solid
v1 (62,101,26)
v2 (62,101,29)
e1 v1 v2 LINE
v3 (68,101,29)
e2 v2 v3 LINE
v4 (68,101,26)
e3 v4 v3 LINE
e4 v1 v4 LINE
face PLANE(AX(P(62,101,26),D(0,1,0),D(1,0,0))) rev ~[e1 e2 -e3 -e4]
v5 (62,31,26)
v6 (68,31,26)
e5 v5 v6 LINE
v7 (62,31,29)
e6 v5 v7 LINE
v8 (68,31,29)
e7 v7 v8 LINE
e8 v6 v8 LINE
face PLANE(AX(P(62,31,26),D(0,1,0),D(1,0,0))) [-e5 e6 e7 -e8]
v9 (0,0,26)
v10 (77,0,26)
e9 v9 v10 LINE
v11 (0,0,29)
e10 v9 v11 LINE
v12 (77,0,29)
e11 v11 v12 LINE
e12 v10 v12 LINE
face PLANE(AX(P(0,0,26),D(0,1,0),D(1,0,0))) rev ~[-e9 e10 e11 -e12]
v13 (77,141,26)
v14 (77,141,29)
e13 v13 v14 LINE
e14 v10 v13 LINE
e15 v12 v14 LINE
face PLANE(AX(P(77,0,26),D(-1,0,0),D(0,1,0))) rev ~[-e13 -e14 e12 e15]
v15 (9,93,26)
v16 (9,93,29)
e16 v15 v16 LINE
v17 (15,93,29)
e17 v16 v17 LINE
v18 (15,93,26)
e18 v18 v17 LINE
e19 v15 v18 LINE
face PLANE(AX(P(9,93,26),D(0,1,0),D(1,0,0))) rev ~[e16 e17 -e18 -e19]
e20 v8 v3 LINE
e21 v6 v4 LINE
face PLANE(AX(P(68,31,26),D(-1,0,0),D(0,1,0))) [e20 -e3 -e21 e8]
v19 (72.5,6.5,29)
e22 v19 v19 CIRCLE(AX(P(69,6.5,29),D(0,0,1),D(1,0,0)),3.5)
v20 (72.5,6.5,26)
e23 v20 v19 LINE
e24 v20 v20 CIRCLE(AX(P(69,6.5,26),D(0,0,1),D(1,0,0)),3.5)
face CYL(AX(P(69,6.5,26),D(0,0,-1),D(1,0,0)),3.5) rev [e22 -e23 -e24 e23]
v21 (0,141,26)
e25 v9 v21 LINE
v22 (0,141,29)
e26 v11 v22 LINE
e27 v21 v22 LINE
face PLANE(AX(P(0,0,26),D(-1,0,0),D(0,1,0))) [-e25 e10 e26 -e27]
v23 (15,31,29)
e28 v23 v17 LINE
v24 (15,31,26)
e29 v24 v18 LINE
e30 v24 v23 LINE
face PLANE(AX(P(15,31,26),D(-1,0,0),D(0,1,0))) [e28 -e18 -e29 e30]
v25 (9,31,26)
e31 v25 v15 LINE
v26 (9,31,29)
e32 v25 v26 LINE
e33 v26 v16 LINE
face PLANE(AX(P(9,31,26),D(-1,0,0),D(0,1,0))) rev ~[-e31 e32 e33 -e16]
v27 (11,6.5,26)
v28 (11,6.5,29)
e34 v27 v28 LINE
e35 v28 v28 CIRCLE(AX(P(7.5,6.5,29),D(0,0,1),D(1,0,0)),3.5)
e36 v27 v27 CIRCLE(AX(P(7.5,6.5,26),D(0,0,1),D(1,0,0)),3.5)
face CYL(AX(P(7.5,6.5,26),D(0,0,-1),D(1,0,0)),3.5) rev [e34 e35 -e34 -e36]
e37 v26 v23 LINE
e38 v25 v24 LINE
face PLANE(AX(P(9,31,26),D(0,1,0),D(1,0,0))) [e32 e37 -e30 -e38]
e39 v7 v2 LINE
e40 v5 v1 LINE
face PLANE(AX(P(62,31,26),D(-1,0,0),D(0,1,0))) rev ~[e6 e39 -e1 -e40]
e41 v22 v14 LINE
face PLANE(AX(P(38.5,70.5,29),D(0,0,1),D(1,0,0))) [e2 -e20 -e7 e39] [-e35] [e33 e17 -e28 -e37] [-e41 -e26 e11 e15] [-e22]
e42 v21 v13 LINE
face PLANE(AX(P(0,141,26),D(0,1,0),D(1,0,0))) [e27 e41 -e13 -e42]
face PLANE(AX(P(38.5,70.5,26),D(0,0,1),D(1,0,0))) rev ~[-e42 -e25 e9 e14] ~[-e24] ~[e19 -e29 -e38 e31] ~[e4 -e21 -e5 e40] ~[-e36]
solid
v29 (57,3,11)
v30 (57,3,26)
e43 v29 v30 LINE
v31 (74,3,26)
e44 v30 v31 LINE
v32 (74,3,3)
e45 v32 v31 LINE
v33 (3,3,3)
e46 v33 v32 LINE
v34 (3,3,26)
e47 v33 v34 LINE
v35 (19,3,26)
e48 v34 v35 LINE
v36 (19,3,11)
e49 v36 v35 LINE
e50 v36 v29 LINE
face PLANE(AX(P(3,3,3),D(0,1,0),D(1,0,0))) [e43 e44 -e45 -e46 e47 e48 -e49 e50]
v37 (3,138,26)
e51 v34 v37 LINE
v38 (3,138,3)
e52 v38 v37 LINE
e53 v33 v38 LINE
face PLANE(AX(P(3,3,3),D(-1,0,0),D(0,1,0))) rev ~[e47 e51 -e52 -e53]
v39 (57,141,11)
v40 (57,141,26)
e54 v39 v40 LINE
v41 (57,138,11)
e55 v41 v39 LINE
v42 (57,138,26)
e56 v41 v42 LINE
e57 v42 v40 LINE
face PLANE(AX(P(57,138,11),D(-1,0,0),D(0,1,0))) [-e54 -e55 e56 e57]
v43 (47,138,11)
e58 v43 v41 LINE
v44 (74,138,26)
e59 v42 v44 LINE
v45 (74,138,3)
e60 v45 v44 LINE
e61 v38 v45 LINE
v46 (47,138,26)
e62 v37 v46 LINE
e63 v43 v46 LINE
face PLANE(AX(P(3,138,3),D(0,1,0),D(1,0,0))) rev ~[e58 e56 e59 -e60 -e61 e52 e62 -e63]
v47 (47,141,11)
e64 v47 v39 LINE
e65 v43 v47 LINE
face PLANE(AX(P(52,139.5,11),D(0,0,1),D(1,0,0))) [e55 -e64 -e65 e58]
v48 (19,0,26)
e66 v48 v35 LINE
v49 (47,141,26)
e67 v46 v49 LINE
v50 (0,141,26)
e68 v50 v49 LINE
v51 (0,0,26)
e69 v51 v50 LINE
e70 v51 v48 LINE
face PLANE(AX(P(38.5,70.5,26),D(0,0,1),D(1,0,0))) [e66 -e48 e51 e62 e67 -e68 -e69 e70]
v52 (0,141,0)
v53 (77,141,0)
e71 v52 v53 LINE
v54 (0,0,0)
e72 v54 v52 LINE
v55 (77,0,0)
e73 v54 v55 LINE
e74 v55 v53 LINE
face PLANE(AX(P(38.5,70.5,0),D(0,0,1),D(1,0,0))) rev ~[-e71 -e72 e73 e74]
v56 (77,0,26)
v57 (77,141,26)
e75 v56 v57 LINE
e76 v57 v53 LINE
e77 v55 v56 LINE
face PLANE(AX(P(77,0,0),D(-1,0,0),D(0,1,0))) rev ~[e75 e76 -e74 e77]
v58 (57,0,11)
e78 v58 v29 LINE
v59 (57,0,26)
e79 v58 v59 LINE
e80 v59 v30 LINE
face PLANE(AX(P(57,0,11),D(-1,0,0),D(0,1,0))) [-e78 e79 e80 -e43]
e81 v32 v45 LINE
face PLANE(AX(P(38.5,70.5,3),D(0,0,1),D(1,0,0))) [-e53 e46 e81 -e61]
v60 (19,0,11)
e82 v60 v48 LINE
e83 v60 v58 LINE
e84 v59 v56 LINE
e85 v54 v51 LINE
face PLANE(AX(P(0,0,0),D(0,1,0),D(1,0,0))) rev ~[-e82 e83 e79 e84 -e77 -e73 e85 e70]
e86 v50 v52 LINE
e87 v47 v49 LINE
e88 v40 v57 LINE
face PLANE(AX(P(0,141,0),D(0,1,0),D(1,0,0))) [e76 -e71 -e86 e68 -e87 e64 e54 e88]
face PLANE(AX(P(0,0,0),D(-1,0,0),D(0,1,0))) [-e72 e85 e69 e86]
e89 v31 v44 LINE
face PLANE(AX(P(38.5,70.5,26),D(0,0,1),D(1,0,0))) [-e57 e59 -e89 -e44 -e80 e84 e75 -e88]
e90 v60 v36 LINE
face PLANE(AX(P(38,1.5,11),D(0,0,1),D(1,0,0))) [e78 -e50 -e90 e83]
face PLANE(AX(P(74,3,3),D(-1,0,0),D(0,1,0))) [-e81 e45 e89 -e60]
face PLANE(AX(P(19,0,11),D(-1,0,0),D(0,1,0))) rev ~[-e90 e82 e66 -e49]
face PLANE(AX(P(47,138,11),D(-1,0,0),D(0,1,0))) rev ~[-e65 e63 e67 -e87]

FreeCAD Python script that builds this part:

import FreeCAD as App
import Part
import Sketcher

V = App.Vector


def add_polygon(sketch, points):
    """Adds a closed chain of lines whose ends are joined by coincident constraints."""
    first, n = sketch.GeometryCount, len(points)
    for a, b in zip(points, points[1:] + points[:1]):
        sketch.addGeometry(Part.LineSegment(App.Vector(*a, 0), App.Vector(*b, 0)), False)
    for i in range(n):
        sketch.addConstraint(Sketcher.Constraint("Coincident", first + i, 2, first + (i + 1) % n, 1))

doc = App.newDocument("Part")
body = doc.addObject("PartDesign::Body", "Body")

# Sketch on XY plane
sketch1 = doc.addObject("Sketcher::SketchObject", "Sketch")
body.addObject(sketch1)
sketch1.AttachmentSupport = (doc.XY_Plane, [""])
sketch1.MapMode = "FlatFace"
sketch1.AttachmentOffset = App.Placement(V(0, 0, 11), App.Rotation())
add_polygon(sketch1, [(47, 141), (47, 138), (57, 138), (57, 141)])  # lines 0-3
sketch1.addConstraint([
    Sketcher.Constraint("Vertical", 0),
    Sketcher.Constraint("Horizontal", 1),
    Sketcher.Constraint("Vertical", 2),
    Sketcher.Constraint("Horizontal", 3),
    Sketcher.Constraint("DistanceX", 1, 1, 1, 2, 10.0),
    Sketcher.Constraint("DistanceY", 0, 2, 0, 1, 3.0),
    Sketcher.Constraint("DistanceX", -1, 1, 0, 2, 47.0),
    Sketcher.Constraint("DistanceY", -1, 1, 0, 2, 138.0),
])
pad1 = doc.addObject("PartDesign::Pad", "Pad")
body.addObject(pad1)
pad1.Profile = sketch1
pad1.Length = 15
body2 = doc.addObject("PartDesign::Body", "Body001")

# Sketch on XY plane
sketch2 = doc.addObject("Sketcher::SketchObject", "Sketch001")
body2.addObject(sketch2)
sketch2.AttachmentSupport = (doc.getObject("XY_Plane001"), [""])
sketch2.MapMode = "FlatFace"
sketch2.AttachmentOffset = App.Placement(V(0, 0, 11), App.Rotation())
add_polygon(sketch2, [(19, 3), (19, 0), (57, 0), (57, 3)])  # lines 0-3
sketch2.addConstraint([
    Sketcher.Constraint("Vertical", 0),
    Sketcher.Constraint("Horizontal", 1),
    Sketcher.Constraint("Vertical", 2),
    Sketcher.Constraint("Horizontal", 3),
    Sketcher.Constraint("PointOnObject", 0, 2, -1),
    Sketcher.Constraint("DistanceX", 1, 1, 1, 2, 38.0),
    Sketcher.Constraint("DistanceY", 0, 2, 0, 1, 3.0),
    Sketcher.Constraint("DistanceX", -1, 1, 0, 2, 19.0),
])
pad2 = doc.addObject("PartDesign::Pad", "Pad001")
body2.addObject(pad2)
pad2.Profile = sketch2
pad2.Length = 15
body3 = doc.addObject("PartDesign::Body", "Body002")

# Sketch on XY plane
sketch3 = doc.addObject("Sketcher::SketchObject", "Sketch002")
body3.addObject(sketch3)
sketch3.AttachmentSupport = (doc.getObject("XY_Plane002"), [""])
sketch3.MapMode = "FlatFace"
add_polygon(sketch3, [(0, 141), (0, 0), (77, 0), (77, 141)])  # lines 0-3
sketch3.addConstraint([
    Sketcher.Constraint("Vertical", 0),
    Sketcher.Constraint("Horizontal", 1),
    Sketcher.Constraint("Vertical", 2),
    Sketcher.Constraint("Horizontal", 3),
    Sketcher.Constraint("Coincident", 0, 2, -1, 1),
    Sketcher.Constraint("DistanceX", 1, 1, 1, 2, 77.0),
    Sketcher.Constraint("DistanceY", 0, 2, 0, 1, 141.0),
])
pad3 = doc.addObject("PartDesign::Pad", "Pad002")
body3.addObject(pad3)
pad3.Profile = sketch3
pad3.Length = 3
body4 = doc.addObject("PartDesign::Body", "Body003")

# Sketch on XY plane
sketch4 = doc.addObject("Sketcher::SketchObject", "Sketch003")
body4.addObject(sketch4)
sketch4.AttachmentSupport = (doc.getObject("XY_Plane003"), [""])
sketch4.MapMode = "FlatFace"
add_polygon(sketch4, [(3, 138), (3, 3), (74, 3), (74, 138)])  # lines 0-3
sketch4.addConstraint([
    Sketcher.Constraint("Vertical", 0),
    Sketcher.Constraint("Horizontal", 1),
    Sketcher.Constraint("Vertical", 2),
    Sketcher.Constraint("Horizontal", 3),
    Sketcher.Constraint("DistanceX", 1, 1, 1, 2, 71.0),
    Sketcher.Constraint("DistanceY", 0, 2, 0, 1, 135.0),
    Sketcher.Constraint("DistanceX", -1, 1, 0, 2, 3.0),
    Sketcher.Constraint("DistanceY", -1, 1, 0, 2, 3.0),
])
pad4 = doc.addObject("PartDesign::Pad", "Pad003")
body4.addObject(pad4)
pad4.Profile = sketch4
pad4.Length = 23
body5 = doc.addObject("PartDesign::Body", "Body004")

# Sketch on XY plane
sketch5 = doc.addObject("Sketcher::SketchObject", "Sketch004")
body5.addObject(sketch5)
sketch5.AttachmentSupport = (doc.getObject("XY_Plane004"), [""])
sketch5.MapMode = "FlatFace"
add_polygon(sketch5, [(0, 141), (0, 0), (77, 0), (77, 141)])  # lines 0-3
sketch5.addConstraint([
    Sketcher.Constraint("Vertical", 0),
    Sketcher.Constraint("Horizontal", 1),
    Sketcher.Constraint("Vertical", 2),
    Sketcher.Constraint("Horizontal", 3),
    Sketcher.Constraint("Coincident", 0, 2, -1, 1),
    Sketcher.Constraint("DistanceX", 1, 1, 1, 2, 77.0),
    Sketcher.Constraint("DistanceY", 0, 2, 0, 1, 141.0),
])
pad5 = doc.addObject("PartDesign::Pad", "Pad004")
body5.addObject(pad5)
pad5.Profile = sketch5
pad5.Length = 23
doc.recompute()

boolean = doc.addObject("PartDesign::Boolean", "Boolean")
body5.addObject(boolean)
boolean.Type = "Cut"
boolean.addObjects([body4])
body6 = doc.addObject("PartDesign::Body", "Body005")
doc.recompute()

body5.Placement = App.Placement(V(0, 0, 3), App.Rotation(V(0, 0, 1), 0))
boolean2 = doc.addObject("PartDesign::Boolean", "Boolean001")
body6.addObject(boolean2)
boolean2.Type = "Fuse"
boolean2.addObjects([body5])
doc.recompute()

boolean3 = doc.addObject("PartDesign::Boolean", "Boolean002")
body6.addObject(boolean3)
boolean3.Type = "Fuse"
boolean3.addObjects([body3])
doc.recompute()

boolean4 = doc.addObject("PartDesign::Boolean", "Boolean003")
body6.addObject(boolean4)
boolean4.Type = "Cut"
boolean4.addObjects([body2])
doc.recompute()

boolean5 = doc.addObject("PartDesign::Boolean", "Boolean004")
body6.addObject(boolean5)
boolean5.Type = "Cut"
boolean5.addObjects([body])
body7 = doc.addObject("PartDesign::Body", "Body006")

# Sketch on XY plane
sketch6 = doc.addObject("Sketcher::SketchObject", "Sketch005")
body7.addObject(sketch6)
sketch6.AttachmentSupport = (doc.getObject("XY_Plane006"), [""])
sketch6.MapMode = "FlatFace"
sketch6.AttachmentOffset = App.Placement(V(0, 0, 26), App.Rotation())
add_polygon(sketch6, [(62, 101), (62, 31), (68, 31), (68, 101)])  # lines 0-3
sketch6.addConstraint([
    Sketcher.Constraint("Vertical", 0),
    Sketcher.Constraint("Horizontal", 1),
    Sketcher.Constraint("Vertical", 2),
    Sketcher.Constraint("Horizontal", 3),
    Sketcher.Constraint("DistanceX", 1, 1, 1, 2, 6.0),
    Sketcher.Constraint("DistanceY", 0, 2, 0, 1, 70.0),
    Sketcher.Constraint("DistanceX", -1, 1, 0, 2, 62.0),
    Sketcher.Constraint("DistanceY", -1, 1, 0, 2, 31.0),
])
pad6 = doc.addObject("PartDesign::Pad", "Pad005")
body7.addObject(pad6)
pad6.Profile = sketch6
pad6.Length = 3
body8 = doc.addObject("PartDesign::Body", "Body007")
body8.AllowCompound = True

# Sketch on XY plane
sketch7 = doc.addObject("Sketcher::SketchObject", "Sketch006")
body8.addObject(sketch7)
sketch7.AttachmentSupport = (doc.getObject("XY_Plane007"), [""])
sketch7.MapMode = "FlatFace"
sketch7.AttachmentOffset = App.Placement(V(0, 0, 26), App.Rotation())
add_polygon(sketch7, [(9, 93), (9, 31), (15, 31), (15, 93)])  # lines 0-3
sketch7.addConstraint([
    Sketcher.Constraint("Vertical", 0),
    Sketcher.Constraint("Horizontal", 1),
    Sketcher.Constraint("Vertical", 2),
    Sketcher.Constraint("Horizontal", 3),
    Sketcher.Constraint("DistanceX", 1, 1, 1, 2, 6.0),
    Sketcher.Constraint("DistanceY", 0, 2, 0, 1, 62.0),
    Sketcher.Constraint("DistanceX", -1, 1, 0, 2, 9.0),
    Sketcher.Constraint("DistanceY", -1, 1, 0, 2, 31.0),
])
pad7 = doc.addObject("PartDesign::Pad", "Pad006")
body8.addObject(pad7)
pad7.Profile = sketch7
pad7.Length = 3
doc.recompute()

boolean6 = doc.addObject("PartDesign::Boolean", "Boolean005")
body8.addObject(boolean6)
boolean6.Type = "Fuse"
boolean6.addObjects([body7])
body9 = doc.addObject("PartDesign::Body", "Body008")

# Sketch on XY plane
sketch8 = doc.addObject("Sketcher::SketchObject", "Sketch007")
body9.addObject(sketch8)
sketch8.AttachmentSupport = (doc.getObject("XY_Plane008"), [""])
sketch8.MapMode = "FlatFace"
sketch8.AttachmentOffset = App.Placement(V(0, 0, 26), App.Rotation())
sketch8.addGeometry(Part.Circle(V(69, 5.5, 0), V(0, 0, 1), 3.5), False)
sketch8.addConstraint([
    Sketcher.Constraint("Diameter", 0, 7.0),
    Sketcher.Constraint("DistanceX", -1, 1, 0, 3, 69.0),
    Sketcher.Constraint("DistanceY", -1, 1, 0, 3, 5.5),
])
pad8 = doc.addObject("PartDesign::Pad", "Pad007")
body9.addObject(pad8)
pad8.Profile = sketch8
pad8.Length = 3
body10 = doc.addObject("PartDesign::Body", "Body009")
body10.AllowCompound = True

# Sketch on XY plane
sketch9 = doc.addObject("Sketcher::SketchObject", "Sketch008")
body10.addObject(sketch9)
sketch9.AttachmentSupport = (doc.getObject("XY_Plane009"), [""])
sketch9.MapMode = "FlatFace"
sketch9.AttachmentOffset = App.Placement(V(0, 0, 26), App.Rotation())
sketch9.addGeometry(Part.Circle(V(7.5, 5.5, 0), V(0, 0, 1), 3.5), False)
sketch9.addConstraint([
    Sketcher.Constraint("Diameter", 0, 7.0),
    Sketcher.Constraint("DistanceX", -1, 1, 0, 3, 7.5),
    Sketcher.Constraint("DistanceY", -1, 1, 0, 3, 5.5),
])
pad9 = doc.addObject("PartDesign::Pad", "Pad008")
body10.addObject(pad9)
pad9.Profile = sketch9
pad9.Length = 3
doc.recompute()

boolean7 = doc.addObject("PartDesign::Boolean", "Boolean006")
body10.addObject(boolean7)
boolean7.Type = "Fuse"
boolean7.addObjects([body9])
body11 = doc.addObject("PartDesign::Body", "Body010")
body11.AllowCompound = True
doc.recompute()

body10.Placement = App.Placement(V(0, 1, 0), App.Rotation(V(0, 0, 1), 0))
boolean8 = doc.addObject("PartDesign::Boolean", "Boolean007")
body11.addObject(boolean8)
boolean8.Type = "Fuse"
boolean8.addObjects([body10])
body12 = doc.addObject("PartDesign::Body", "Body011")

# Sketch on XY plane
sketch10 = doc.addObject("Sketcher::SketchObject", "Sketch009")
body12.addObject(sketch10)
sketch10.AttachmentSupport = (doc.getObject("XY_Plane011"), [""])
sketch10.MapMode = "FlatFace"
sketch10.AttachmentOffset = App.Placement(V(0, 0, 26), App.Rotation())
add_polygon(sketch10, [(0, 141), (0, 0), (77, 0), (77, 141)])  # lines 0-3
sketch10.addConstraint([
    Sketcher.Constraint("Vertical", 0),
    Sketcher.Constraint("Horizontal", 1),
    Sketcher.Constraint("Vertical", 2),
    Sketcher.Constraint("Horizontal", 3),
    Sketcher.Constraint("Coincident", 0, 2, -1, 1),
    Sketcher.Constraint("DistanceX", 1, 1, 1, 2, 77.0),
    Sketcher.Constraint("DistanceY", 0, 2, 0, 1, 141.0),
])
pad10 = doc.addObject("PartDesign::Pad", "Pad009")
body12.addObject(pad10)
pad10.Profile = sketch10
pad10.Length = 3
doc.recompute()

boolean9 = doc.addObject("PartDesign::Boolean", "Boolean008")
body12.addObject(boolean9)
boolean9.Type = "Cut"
boolean9.addObjects([body11])
doc.recompute()

boolean10 = doc.addObject("PartDesign::Boolean", "Boolean009")
body12.addObject(boolean10)
boolean10.Type = "Cut"
boolean10.addObjects([body8])

doc.recompute()
